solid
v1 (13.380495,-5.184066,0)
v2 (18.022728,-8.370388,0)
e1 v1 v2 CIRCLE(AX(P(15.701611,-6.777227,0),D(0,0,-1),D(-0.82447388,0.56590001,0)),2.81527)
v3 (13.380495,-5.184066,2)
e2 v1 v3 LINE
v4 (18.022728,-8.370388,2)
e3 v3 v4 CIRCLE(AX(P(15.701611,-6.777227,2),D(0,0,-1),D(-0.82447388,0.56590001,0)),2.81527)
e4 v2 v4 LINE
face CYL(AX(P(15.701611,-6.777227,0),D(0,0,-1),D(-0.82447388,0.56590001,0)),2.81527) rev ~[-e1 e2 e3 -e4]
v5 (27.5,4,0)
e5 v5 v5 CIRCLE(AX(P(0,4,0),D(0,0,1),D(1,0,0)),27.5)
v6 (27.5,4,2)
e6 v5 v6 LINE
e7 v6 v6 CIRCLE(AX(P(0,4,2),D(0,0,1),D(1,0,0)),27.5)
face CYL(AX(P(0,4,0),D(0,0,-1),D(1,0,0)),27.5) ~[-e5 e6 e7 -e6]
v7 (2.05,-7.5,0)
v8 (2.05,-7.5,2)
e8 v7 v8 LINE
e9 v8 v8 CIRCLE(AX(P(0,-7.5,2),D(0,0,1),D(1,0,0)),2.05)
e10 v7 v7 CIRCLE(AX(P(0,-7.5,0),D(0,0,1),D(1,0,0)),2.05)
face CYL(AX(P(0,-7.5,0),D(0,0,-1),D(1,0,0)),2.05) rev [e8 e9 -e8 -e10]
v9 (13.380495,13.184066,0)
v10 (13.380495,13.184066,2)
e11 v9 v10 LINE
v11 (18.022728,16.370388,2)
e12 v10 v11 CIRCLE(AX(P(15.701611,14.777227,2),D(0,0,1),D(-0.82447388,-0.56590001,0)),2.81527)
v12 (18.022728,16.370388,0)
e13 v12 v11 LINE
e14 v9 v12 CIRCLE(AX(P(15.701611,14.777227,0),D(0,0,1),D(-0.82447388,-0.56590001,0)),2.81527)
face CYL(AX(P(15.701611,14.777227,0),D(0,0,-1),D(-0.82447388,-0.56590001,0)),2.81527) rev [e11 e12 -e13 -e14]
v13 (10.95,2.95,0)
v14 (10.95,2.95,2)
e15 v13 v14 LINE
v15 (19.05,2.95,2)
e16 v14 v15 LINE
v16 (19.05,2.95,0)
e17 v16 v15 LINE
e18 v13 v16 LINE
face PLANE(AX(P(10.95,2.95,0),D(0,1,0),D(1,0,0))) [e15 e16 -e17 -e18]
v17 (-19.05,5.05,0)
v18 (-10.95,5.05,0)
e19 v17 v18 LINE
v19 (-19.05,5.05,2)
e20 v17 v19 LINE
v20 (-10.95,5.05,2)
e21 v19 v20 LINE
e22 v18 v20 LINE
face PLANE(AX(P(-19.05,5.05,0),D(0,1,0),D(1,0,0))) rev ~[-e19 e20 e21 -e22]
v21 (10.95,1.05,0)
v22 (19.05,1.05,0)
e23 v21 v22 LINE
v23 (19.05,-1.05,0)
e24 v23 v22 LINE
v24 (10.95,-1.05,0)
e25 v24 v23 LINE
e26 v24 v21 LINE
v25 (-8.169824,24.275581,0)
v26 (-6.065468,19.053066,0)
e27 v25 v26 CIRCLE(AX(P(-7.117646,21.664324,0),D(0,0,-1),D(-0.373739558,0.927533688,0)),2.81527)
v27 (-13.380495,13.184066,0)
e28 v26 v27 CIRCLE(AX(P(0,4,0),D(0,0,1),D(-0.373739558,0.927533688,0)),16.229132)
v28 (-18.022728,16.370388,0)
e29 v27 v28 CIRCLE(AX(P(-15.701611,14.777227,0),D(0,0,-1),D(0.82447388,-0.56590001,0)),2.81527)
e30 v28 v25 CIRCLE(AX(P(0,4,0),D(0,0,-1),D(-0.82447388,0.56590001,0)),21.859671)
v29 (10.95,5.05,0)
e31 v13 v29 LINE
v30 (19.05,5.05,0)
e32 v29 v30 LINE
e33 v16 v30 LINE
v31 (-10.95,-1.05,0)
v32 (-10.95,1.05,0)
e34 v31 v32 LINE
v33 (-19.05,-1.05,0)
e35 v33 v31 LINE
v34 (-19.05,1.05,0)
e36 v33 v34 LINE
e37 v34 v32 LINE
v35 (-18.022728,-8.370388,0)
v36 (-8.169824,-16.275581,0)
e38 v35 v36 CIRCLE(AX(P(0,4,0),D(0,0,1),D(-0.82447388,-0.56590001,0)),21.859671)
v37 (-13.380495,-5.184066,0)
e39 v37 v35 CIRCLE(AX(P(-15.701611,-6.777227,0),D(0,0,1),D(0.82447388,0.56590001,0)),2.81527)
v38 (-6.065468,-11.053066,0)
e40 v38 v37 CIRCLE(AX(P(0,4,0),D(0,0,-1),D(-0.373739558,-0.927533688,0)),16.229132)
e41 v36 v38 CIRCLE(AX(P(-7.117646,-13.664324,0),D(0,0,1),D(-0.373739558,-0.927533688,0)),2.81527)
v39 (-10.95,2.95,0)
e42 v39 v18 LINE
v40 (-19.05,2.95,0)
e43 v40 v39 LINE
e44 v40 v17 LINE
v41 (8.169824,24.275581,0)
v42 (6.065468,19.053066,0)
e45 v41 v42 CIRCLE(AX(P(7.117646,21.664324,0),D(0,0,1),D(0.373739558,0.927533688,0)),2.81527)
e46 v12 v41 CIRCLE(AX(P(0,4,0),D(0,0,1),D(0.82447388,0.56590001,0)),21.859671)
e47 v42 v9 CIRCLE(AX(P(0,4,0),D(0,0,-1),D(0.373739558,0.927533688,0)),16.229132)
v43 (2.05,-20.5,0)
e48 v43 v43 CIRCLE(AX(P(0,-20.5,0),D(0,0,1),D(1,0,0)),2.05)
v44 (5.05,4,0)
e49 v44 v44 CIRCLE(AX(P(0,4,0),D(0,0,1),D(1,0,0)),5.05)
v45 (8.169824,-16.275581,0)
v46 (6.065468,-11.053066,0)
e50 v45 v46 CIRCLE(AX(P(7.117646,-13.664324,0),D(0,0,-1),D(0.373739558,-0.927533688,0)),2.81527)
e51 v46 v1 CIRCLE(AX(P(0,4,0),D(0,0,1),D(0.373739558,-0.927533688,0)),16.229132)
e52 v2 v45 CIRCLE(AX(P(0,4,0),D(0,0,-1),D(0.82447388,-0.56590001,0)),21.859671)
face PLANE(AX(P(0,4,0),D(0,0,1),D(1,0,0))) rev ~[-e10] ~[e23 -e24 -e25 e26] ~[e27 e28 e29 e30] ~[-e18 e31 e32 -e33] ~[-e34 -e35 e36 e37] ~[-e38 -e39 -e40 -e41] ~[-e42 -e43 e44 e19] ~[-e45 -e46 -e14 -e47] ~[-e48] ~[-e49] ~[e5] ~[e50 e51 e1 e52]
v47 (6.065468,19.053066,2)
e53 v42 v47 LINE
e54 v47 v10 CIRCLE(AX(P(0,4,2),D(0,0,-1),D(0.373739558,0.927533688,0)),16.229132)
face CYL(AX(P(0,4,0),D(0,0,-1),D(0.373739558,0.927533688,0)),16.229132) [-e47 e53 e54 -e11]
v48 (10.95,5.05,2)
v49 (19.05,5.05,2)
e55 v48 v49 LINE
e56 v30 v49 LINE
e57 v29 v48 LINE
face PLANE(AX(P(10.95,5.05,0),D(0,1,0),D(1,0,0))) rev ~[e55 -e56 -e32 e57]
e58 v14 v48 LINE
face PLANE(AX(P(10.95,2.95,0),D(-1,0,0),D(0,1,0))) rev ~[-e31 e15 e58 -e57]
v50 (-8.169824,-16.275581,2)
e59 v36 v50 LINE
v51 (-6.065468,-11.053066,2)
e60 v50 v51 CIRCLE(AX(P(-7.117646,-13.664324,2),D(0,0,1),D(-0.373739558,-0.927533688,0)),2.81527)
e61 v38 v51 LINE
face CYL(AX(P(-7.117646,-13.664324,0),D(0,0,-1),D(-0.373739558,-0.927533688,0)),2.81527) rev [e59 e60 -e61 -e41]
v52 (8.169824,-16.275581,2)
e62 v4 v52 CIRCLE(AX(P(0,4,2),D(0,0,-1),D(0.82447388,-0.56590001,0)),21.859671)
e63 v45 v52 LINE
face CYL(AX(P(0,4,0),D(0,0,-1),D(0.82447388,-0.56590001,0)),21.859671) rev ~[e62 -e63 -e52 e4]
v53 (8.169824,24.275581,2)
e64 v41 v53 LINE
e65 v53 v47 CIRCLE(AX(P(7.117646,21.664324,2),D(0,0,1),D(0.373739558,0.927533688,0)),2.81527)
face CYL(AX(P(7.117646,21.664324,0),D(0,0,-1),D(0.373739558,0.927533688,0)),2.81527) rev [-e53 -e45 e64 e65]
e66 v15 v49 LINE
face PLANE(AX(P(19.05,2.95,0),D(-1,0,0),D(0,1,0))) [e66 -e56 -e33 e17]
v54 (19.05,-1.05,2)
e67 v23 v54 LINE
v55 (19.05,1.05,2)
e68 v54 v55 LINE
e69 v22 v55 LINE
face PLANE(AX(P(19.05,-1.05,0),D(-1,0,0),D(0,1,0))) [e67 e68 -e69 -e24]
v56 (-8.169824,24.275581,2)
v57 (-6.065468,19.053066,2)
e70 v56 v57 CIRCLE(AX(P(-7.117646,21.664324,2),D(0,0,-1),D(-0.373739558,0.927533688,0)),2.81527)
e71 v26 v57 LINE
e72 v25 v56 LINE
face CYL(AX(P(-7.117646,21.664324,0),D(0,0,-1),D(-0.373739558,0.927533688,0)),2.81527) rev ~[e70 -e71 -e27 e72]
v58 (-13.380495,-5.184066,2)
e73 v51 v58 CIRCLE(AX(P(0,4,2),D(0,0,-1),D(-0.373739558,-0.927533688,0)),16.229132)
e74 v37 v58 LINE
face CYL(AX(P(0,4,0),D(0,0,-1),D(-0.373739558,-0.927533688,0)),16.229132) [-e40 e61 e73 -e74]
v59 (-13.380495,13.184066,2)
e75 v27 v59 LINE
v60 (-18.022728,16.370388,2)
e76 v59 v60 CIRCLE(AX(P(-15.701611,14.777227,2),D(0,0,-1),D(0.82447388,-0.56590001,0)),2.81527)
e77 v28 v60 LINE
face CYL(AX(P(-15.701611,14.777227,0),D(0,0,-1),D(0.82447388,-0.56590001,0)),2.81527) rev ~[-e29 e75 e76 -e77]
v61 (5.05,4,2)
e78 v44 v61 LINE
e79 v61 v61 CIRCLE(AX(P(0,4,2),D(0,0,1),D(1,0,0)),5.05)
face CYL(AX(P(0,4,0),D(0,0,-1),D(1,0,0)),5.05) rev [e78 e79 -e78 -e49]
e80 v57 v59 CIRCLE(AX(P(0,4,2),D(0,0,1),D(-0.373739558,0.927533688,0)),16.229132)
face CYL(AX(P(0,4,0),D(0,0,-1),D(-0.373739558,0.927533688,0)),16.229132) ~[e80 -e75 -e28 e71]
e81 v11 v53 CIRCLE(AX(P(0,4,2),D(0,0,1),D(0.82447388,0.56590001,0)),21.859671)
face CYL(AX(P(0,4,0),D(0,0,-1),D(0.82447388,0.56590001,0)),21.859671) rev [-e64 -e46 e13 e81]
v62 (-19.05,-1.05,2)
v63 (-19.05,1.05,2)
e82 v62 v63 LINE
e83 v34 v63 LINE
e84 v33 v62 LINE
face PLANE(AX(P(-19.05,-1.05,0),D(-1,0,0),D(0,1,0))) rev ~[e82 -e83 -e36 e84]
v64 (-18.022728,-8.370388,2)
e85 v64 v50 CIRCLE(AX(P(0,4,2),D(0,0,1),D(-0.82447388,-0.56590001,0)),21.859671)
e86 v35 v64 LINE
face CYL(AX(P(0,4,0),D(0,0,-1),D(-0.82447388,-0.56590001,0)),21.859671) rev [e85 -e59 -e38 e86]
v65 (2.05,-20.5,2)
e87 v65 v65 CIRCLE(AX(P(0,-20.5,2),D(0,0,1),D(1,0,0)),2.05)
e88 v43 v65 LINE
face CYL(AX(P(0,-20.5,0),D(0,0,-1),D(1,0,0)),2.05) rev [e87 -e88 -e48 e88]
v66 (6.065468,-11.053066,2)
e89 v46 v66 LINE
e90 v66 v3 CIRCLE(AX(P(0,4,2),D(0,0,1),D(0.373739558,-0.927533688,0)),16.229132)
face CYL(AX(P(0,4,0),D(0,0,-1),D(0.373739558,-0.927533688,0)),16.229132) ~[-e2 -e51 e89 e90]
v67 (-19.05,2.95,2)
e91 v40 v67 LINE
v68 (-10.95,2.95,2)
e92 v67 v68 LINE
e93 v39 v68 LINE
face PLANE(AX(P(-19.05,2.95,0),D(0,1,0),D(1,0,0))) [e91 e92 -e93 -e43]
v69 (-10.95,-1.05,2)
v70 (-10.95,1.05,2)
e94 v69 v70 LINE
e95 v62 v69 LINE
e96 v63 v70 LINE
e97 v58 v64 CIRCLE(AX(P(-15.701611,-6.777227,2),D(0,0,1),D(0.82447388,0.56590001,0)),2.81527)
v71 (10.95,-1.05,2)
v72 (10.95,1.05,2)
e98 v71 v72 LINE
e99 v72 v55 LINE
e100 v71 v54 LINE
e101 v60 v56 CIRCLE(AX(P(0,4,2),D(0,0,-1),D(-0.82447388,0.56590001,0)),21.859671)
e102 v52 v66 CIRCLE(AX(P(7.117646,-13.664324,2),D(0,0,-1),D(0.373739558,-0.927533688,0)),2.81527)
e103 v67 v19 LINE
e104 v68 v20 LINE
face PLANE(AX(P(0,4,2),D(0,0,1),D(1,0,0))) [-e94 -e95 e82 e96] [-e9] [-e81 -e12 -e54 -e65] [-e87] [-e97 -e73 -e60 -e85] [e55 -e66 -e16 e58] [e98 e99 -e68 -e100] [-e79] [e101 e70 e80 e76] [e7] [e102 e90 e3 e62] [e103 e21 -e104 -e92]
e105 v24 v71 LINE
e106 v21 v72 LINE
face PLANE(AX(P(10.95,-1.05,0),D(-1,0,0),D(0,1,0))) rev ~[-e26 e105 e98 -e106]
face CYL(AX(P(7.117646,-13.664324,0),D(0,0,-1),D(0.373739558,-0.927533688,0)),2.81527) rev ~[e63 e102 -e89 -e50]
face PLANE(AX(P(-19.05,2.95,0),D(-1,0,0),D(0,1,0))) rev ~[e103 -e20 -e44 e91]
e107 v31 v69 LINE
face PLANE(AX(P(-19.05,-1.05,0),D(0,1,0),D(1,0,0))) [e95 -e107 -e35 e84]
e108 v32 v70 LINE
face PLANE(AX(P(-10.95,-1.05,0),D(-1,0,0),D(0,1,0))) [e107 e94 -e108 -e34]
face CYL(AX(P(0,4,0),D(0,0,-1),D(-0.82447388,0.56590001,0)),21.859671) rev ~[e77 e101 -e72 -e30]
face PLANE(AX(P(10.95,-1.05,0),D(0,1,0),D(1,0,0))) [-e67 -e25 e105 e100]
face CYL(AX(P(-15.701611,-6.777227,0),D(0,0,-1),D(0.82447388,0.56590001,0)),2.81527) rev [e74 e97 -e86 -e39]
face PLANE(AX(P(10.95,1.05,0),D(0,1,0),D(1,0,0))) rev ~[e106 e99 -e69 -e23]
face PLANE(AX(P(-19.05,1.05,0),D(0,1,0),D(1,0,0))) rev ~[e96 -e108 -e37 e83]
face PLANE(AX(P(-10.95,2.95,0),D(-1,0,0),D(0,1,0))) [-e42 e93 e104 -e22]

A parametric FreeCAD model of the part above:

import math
import FreeCAD as App
import Part
import Sketcher

V = App.Vector
Q = App.Units.Quantity


def add_polygon(sketch, points):
    """Adds a closed chain of lines whose ends are joined by coincident constraints."""
    first, n = sketch.GeometryCount, len(points)
    for a, b in zip(points, points[1:] + points[:1]):
        sketch.addGeometry(Part.LineSegment(App.Vector(*a, 0), App.Vector(*b, 0)), False)
    for i in range(n):
        sketch.addConstraint(Sketcher.Constraint("Coincident", first + i, 2, first + (i + 1) % n, 1))

doc = App.newDocument("Part")
body = doc.addObject("PartDesign::Body", "Body")

# Sketch on XY plane
sketch1 = doc.addObject("Sketcher::SketchObject", "Sketch")
body.addObject(sketch1)
sketch1.AttachmentSupport = (doc.XY_Plane, [""])
sketch1.MapMode = "FlatFace"
sketch1.addGeometry(Part.Circle(V(0, 4, 0), V(0, 0, 1), 27.5), False)  # 0
sketch1.addGeometry(Part.ArcOfCircle(Part.Circle(V(0, 4, 0), V(0, 0, 1), 21.859671), math.radians(-145.535187), math.radians(-111.946431)), False)  # 1
sketch1.addGeometry(Part.ArcOfCircle(Part.Circle(V(-15.701611, -6.777227, 0), V(0, 0, 1), 2.81527), math.radians(34.464813), math.radians(214.464813)), False)  # 2
sketch1.addGeometry(Part.ArcOfCircle(Part.Circle(V(0, 4, 0), V(0, 0, 1), 16.229132), math.radians(-145.535187), math.radians(-111.946431)), False)  # 3
sketch1.addGeometry(Part.ArcOfCircle(Part.Circle(V(-7.117646, -13.664324, 0), V(0, 0, 1), 2.81527), math.radians(-111.946431), math.radians(68.053569)), False)  # 4
add_polygon(sketch1, [(-10.95, -1.05), (-19.05, -1.05), (-19.05, 1.05), (-10.95, 1.05)])  # lines 5-8
sketch1.addGeometry(Part.Circle(V(0, -20.5, 0), V(0, 0, 1), 2.05), False)  # 9
sketch1.addGeometry(Part.Circle(V(0, -7.5, 0), V(0, 0, 1), 2.05), False)  # 10
sketch1.addGeometry(Part.ArcOfCircle(Part.Circle(V(15.701611, -6.777227, 0), V(0, 0, 1), 2.81527), math.radians(-34.464813), math.radians(145.535187)), False)  # 11
sketch1.addGeometry(Part.ArcOfCircle(Part.Circle(V(0, 4, 0), V(0, 0, 1), 21.859671), math.radians(-68.053569), math.radians(-34.464813)), False)  # 12
sketch1.addGeometry(Part.ArcOfCircle(Part.Circle(V(7.117646, -13.664324, 0), V(0, 0, 1), 2.81527), math.radians(111.946431), math.radians(291.946431)), False)  # 13
sketch1.addGeometry(Part.ArcOfCircle(Part.Circle(V(0, 4, 0), V(0, 0, 1), 16.229132), math.radians(-68.053569), math.radians(-34.464813)), False)  # 14
add_polygon(sketch1, [(19.05, -1.05), (10.95, -1.05), (10.95, 1.05), (19.05, 1.05)])  # lines 15-18
add_polygon(sketch1, [(-10.95, 2.95), (-19.05, 2.95), (-19.05, 5.05), (-10.95, 5.05)])  # lines 19-22
sketch1.addGeometry(Part.ArcOfCircle(Part.Circle(V(-15.701611, 14.777227, 0), V(0, 0, 1), 2.81527), math.radians(145.535187), math.radians(325.535187)), False)  # 23
sketch1.addGeometry(Part.ArcOfCircle(Part.Circle(V(0, 4, 0), V(0, 0, 1), 21.859671), math.radians(111.946431), math.radians(145.535187)), False)  # 24
sketch1.addGeometry(Part.ArcOfCircle(Part.Circle(V(-7.117646, 21.664324, 0), V(0, 0, 1), 2.81527), math.radians(-68.053569), math.radians(111.946431)), False)  # 25
sketch1.addGeometry(Part.ArcOfCircle(Part.Circle(V(0, 4, 0), V(0, 0, 1), 16.229132), math.radians(111.946431), math.radians(145.535187)), False)  # 26
sketch1.addGeometry(Part.Circle(V(0, 4, 0), V(0, 0, 1), 5.05), False)  # 27
add_polygon(sketch1, [(19.05, 2.95), (10.95, 2.95), (10.95, 5.05), (19.05, 5.05)])  # lines 28-31
sketch1.addGeometry(Part.ArcOfCircle(Part.Circle(V(0, 4, 0), V(0, 0, 1), 21.859671), math.radians(34.464813), math.radians(68.053569)), False)  # 32
sketch1.addGeometry(Part.ArcOfCircle(Part.Circle(V(15.701611, 14.777227, 0), V(0, 0, 1), 2.81527), math.radians(-145.535187), math.radians(34.464813)), False)  # 33
sketch1.addGeometry(Part.ArcOfCircle(Part.Circle(V(0, 4, 0), V(0, 0, 1), 16.229132), math.radians(34.464813), math.radians(68.053569)), False)  # 34
sketch1.addGeometry(Part.ArcOfCircle(Part.Circle(V(7.117646, 21.664324, 0), V(0, 0, 1), 2.81527), math.radians(68.053569), math.radians(248.053569)), False)  # 35
sketch1.addConstraint([
    Sketcher.Constraint("Tangent", 1, 1, 2, 2),
    Sketcher.Constraint("Tangent", 2, 1, 3, 1),
    Sketcher.Constraint("Tangent", 3, 2, 4, 2),
    Sketcher.Constraint("Tangent", 4, 1, 1, 2),
    Sketcher.Constraint("Tangent", 11, 1, 12, 2),
    Sketcher.Constraint("Tangent", 12, 1, 13, 2),
    Sketcher.Constraint("Tangent", 13, 1, 14, 1),
    Sketcher.Constraint("Tangent", 14, 2, 11, 2),
    Sketcher.Constraint("Tangent", 23, 1, 24, 2),
    Sketcher.Constraint("Tangent", 24, 1, 25, 2),
    Sketcher.Constraint("Tangent", 25, 1, 26, 1),
    Sketcher.Constraint("Tangent", 26, 2, 23, 2),
    Sketcher.Constraint("Tangent", 32, 1, 33, 2),
    Sketcher.Constraint("Tangent", 33, 1, 34, 1),
    Sketcher.Constraint("Tangent", 34, 2, 35, 2),
    Sketcher.Constraint("Tangent", 35, 1, 32, 2),
    Sketcher.Constraint("Horizontal", 5),
    Sketcher.Constraint("Vertical", 6),
    Sketcher.Constraint("Horizontal", 7),
    Sketcher.Constraint("Vertical", 8),
    Sketcher.Constraint("Horizontal", 15),
    Sketcher.Constraint("Vertical", 16),
    Sketcher.Constraint("Horizontal", 17),
    Sketcher.Constraint("Vertical", 18),
    Sketcher.Constraint("Horizontal", 19),
    Sketcher.Constraint("Vertical", 20),
    Sketcher.Constraint("Horizontal", 21),
    Sketcher.Constraint("Vertical", 22),
    Sketcher.Constraint("Horizontal", 28),
    Sketcher.Constraint("Vertical", 29),
    Sketcher.Constraint("Horizontal", 30),
    Sketcher.Constraint("Vertical", 31),
    Sketcher.Constraint("Coincident", 1, 3, 0, 3),
    Sketcher.Constraint("Coincident", 3, 3, 0, 3),
    Sketcher.Constraint("Coincident", 12, 3, 0, 3),
    Sketcher.Constraint("Coincident", 14, 3, 0, 3),
    Sketcher.Constraint("Coincident", 24, 3, 0, 3),
    Sketcher.Constraint("Coincident", 26, 3, 0, 3),
    Sketcher.Constraint("Coincident", 27, 3, 0, 3),
    Sketcher.Constraint("Coincident", 32, 3, 0, 3),
    Sketcher.Constraint("Coincident", 34, 3, 0, 3),
    Sketcher.Constraint("Equal", 9, 10),
    Sketcher.Constraint("Equal", 4, 11),
    Sketcher.Constraint("Equal", 1, 12),
    Sketcher.Constraint("Equal", 13, 23),
    Sketcher.Constraint("Equal", 12, 24),
    Sketcher.Constraint("Equal", 24, 32),
    Sketcher.Constraint("Equal", 25, 33),
    Sketcher.Constraint("Symmetric", 7, 2, 15, 2, -1, 1),
    Sketcher.Constraint("Symmetric", 5, 2, 17, 2, -1, 1),
    Sketcher.Constraint("Symmetric", 2, 3, 11, 3, -2),
    Sketcher.Constraint("Symmetric", 22, 2, 28, 2, -2),
    Sketcher.Constraint("Symmetric", 20, 2, 30, 2, -2),
    Sketcher.Constraint("PointOnObject", 9, 3, -2),
    Sketcher.Constraint("PointOnObject", 10, 3, -2),
    Sketcher.Constraint("Horizontal", 4, 3, 13, 3),
    Sketcher.Constraint("Horizontal", 23, 3, 33, 3),
    Sketcher.Constraint("Horizontal", 25, 3, 35, 3),
    Sketcher.Constraint("Horizontal", 8, 2, 15, 2),
    Sketcher.Constraint("Vertical", 2, 3, 23, 3),
    Sketcher.Constraint("Vertical", 4, 3, 25, 3),
    Sketcher.Constraint("Vertical", 6, 2, 19, 2),
    Sketcher.Constraint("Vertical", 8, 2, 21, 2),
    Sketcher.Constraint("Equal", 18, 20),
    Sketcher.Constraint("Diameter", 0, Q("55 mm")),
    Sketcher.Constraint("Diameter", 9, Q("4.1 mm")),
    Sketcher.Constraint("Diameter", 27, Q("10.1 mm")),
    Sketcher.Constraint("DistanceX", 5, 2, 5, 1, Q("8.1 mm")),
    Sketcher.Constraint("DistanceY", 6, 1, 6, 2, Q("2.1 mm")),
    Sketcher.Constraint("DistanceY", -1, 1, 0, 3, Q("4 mm")),
    Sketcher.Constraint("DistanceY", 9, 3, 10, 3, Q("13 mm")),
    Sketcher.Constraint("DistanceY", 5, 2, 19, 2, Q("4 mm")),
    Sketcher.Constraint("DistanceY", 9, 3, -1, 1, Q("20.5 mm")),
    Sketcher.Constraint("DistanceX", 5, 2, -1, 1, Q("19.05 mm")),
    Sketcher.Constraint("Radius", 1, Q("21.859671 mm")),
    Sketcher.Constraint("Radius", 2, Q("2.81527 mm")),
    Sketcher.Constraint("DistanceY", 3, 2, 2, 1, Q("5.869001 mm")),
    Sketcher.Constraint("DistanceX", 2, 3, -1, 1, Q("15.701611 mm")),
])
pad1 = doc.addObject("PartDesign::Pad", "Pad")
body.addObject(pad1)
pad1.Profile = sketch1
pad1.Length = 2

doc.recompute()
